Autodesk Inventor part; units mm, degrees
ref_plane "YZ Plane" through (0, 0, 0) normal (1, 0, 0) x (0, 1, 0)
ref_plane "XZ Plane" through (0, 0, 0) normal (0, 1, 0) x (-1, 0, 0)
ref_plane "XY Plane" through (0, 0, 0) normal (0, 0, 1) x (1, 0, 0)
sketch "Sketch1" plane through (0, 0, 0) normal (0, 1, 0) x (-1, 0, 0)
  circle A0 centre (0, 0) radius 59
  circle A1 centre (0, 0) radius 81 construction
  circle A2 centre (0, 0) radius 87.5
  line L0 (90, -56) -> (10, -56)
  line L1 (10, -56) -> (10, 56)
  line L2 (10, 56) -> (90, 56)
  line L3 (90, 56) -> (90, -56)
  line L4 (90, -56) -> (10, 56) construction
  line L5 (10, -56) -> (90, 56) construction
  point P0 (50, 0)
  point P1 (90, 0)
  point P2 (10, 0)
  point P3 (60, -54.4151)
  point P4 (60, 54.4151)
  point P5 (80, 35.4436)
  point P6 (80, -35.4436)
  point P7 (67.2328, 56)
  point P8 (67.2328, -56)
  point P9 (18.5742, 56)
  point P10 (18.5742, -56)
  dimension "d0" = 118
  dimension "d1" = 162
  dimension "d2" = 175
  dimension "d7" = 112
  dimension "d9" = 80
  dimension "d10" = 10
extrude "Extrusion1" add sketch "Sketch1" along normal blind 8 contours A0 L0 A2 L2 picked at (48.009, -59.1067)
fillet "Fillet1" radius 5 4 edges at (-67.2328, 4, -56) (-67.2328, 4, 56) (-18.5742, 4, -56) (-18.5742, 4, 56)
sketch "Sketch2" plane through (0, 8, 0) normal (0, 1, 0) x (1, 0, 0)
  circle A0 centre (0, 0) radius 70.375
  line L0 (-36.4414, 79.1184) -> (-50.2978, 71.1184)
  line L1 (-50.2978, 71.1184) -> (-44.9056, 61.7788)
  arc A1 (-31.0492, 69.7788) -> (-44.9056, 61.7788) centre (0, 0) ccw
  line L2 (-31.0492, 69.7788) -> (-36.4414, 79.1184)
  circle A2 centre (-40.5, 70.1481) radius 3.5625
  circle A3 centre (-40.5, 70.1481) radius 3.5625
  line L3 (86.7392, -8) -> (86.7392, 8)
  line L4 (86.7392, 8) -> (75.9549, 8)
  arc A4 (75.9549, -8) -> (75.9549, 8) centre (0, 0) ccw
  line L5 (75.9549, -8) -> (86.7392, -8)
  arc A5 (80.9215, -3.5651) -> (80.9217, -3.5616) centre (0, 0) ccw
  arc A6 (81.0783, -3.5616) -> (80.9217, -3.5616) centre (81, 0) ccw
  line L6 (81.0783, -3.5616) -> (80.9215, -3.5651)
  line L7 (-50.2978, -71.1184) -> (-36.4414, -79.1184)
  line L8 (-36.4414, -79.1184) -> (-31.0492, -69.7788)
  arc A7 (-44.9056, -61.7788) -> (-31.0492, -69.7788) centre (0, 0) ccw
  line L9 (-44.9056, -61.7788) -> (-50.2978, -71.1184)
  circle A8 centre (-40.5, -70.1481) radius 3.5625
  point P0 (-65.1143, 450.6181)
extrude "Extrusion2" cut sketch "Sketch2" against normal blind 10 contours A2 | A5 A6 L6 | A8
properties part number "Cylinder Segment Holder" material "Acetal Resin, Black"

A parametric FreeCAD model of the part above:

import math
import FreeCAD as App
import Part
import Sketcher
from FreeCAD import Vector
Q = App.Units.Quantity


def edges_at(feature, points):
    """Names of the edges that pass closest to the given points."""
    edges = feature.Shape.Edges
    near = lambda p: min(range(len(edges)), key=lambda i: edges[i].distToShape(Part.Vertex(*p))[0])
    return sorted({f"Edge{near(p) + 1}" for p in points})

doc = App.newDocument("Part")
body = doc.addObject("PartDesign::Body", "Body")

sketch1 = body.newObject("Sketcher::SketchObject", "Sketch")
sketch1.AttachmentSupport = (doc.getObject("XZ_Plane"), [""])
sketch1.MapMode = "FlatFace"
sketch1.addGeometry([
    Part.ArcOfCircle(Part.Circle(Vector(0, 0, 0), Vector(0, 0, 1), 59), math.radians(-108), math.radians(108)),
    Part.LineSegment(Vector(-19, 56, 0), Vector(-67, 56, 0)),
    Part.ArcOfCircle(Part.Circle(Vector(0, 0, 0), Vector(0, 0, 1), 88), math.radians(-140), math.radians(140)),
    Part.LineSegment(Vector(-67, -56, 0), Vector(-19, -56, 0)),
], False)
sketch1.addConstraint([
    Sketcher.Constraint("Coincident", 0, 2, 1, 1),
    Sketcher.Constraint("Coincident", 1, 2, 2, 2),
    Sketcher.Constraint("Coincident", 2, 1, 3, 1),
    Sketcher.Constraint("Coincident", 3, 2, 0, 1),
    Sketcher.Constraint("Horizontal", 1),
    Sketcher.Constraint("Horizontal", 3),
    Sketcher.Constraint("Coincident", 0, 3, -1, 1),
    Sketcher.Constraint("Coincident", 2, 3, -1, 1),
    Sketcher.Constraint("Vertical", 1, 2, 2, 1),
    Sketcher.Constraint("Radius", 0, Q("59 mm")),
    Sketcher.Constraint("Radius", 2, Q("87.5 mm")),
    Sketcher.Constraint("DistanceY", 2, 1, 1, 2, Q("112 mm")),
])
pad1 = body.newObject("PartDesign::Pad", "Pad")
pad1.Profile = sketch1
pad1.Length = 8
pad1.Reversed = True
doc.recompute()

fillet = body.newObject("PartDesign::Fillet", "Fillet")
fillet.Base = (pad1, edges_at(pad1, [
    (-67.233, 4, -56),
    (-67.233, 4, 56),
    (-18.574, 4, -56),
    (-18.574, 4, 56),
]))
fillet.Radius = 5

sketch2 = body.newObject("Sketcher::SketchObject", "Sketch001")
sketch2.AttachmentSupport = (doc.getObject("XZ_Plane"), [""])
sketch2.MapMode = "FlatFace"
sketch2.AttachmentOffset = App.Placement(Vector(0, 0, -8), App.Rotation())
sketch2.addGeometry([
    Part.Circle(Vector(-40.5, -70.1481, 0), Vector(0, 0, 1), 3.5625),
    Part.ArcOfCircle(Part.Circle(Vector(80.9886, 3.5672, 0), Vector(0, 0, 1), 0.0671), math.radians(-178.23), math.radians(-175.23)),
    Part.LineSegment(Vector(80.9215, 3.5651, 0), Vector(81.0783, 3.5616, 0)),
    Part.ArcOfCircle(Part.Circle(Vector(81, 0, 0), Vector(0, 0, 1), 3.5625), math.radians(91), math.radians(449)),
    Part.Circle(Vector(-40.5, 70.1481, 0), Vector(0, 0, 1), 3.5625),
], False)
sketch2.addConstraint([
    Sketcher.Constraint("Coincident", 1, 1, 2, 1),
    Sketcher.Constraint("Tangent", 2, 2, 3, 2),
    Sketcher.Constraint("Coincident", 3, 1, 1, 2),
    Sketcher.Constraint("Equal", 0, 3),
    Sketcher.Constraint("Equal", 3, 4),
    Sketcher.Constraint("Symmetric", 0, 3, 4, 3, -1),
    Sketcher.Constraint("PointOnObject", 3, 3, -1),
    Sketcher.Constraint("Horizontal", 2, 2, 3, 1),
    Sketcher.Constraint("Diameter", 0, Q("7.125 mm")),
    Sketcher.Constraint("DistanceX", -1, 1, 3, 3, Q("81 mm")),
    Sketcher.Constraint("Radius", 1, Q("0.067 mm")),
    Sketcher.Constraint("DistanceX", 0, 3, -1, 1, Q("40.5 mm")),
    Sketcher.Constraint("DistanceY", 0, 3, -1, 1, Q("70.148 mm")),
    Sketcher.Constraint("DistanceY", -1, 1, 1, 1, Q("3.565 mm")),
    Sketcher.Constraint("DistanceY", 1, 3, 4, 3, Q("66.581 mm")),
])
pocket1 = body.newObject("PartDesign::Pocket", "Pocket")
pocket1.Profile = sketch2
pocket1.Length = 10
pocket1.Reversed = True

doc.recompute()
